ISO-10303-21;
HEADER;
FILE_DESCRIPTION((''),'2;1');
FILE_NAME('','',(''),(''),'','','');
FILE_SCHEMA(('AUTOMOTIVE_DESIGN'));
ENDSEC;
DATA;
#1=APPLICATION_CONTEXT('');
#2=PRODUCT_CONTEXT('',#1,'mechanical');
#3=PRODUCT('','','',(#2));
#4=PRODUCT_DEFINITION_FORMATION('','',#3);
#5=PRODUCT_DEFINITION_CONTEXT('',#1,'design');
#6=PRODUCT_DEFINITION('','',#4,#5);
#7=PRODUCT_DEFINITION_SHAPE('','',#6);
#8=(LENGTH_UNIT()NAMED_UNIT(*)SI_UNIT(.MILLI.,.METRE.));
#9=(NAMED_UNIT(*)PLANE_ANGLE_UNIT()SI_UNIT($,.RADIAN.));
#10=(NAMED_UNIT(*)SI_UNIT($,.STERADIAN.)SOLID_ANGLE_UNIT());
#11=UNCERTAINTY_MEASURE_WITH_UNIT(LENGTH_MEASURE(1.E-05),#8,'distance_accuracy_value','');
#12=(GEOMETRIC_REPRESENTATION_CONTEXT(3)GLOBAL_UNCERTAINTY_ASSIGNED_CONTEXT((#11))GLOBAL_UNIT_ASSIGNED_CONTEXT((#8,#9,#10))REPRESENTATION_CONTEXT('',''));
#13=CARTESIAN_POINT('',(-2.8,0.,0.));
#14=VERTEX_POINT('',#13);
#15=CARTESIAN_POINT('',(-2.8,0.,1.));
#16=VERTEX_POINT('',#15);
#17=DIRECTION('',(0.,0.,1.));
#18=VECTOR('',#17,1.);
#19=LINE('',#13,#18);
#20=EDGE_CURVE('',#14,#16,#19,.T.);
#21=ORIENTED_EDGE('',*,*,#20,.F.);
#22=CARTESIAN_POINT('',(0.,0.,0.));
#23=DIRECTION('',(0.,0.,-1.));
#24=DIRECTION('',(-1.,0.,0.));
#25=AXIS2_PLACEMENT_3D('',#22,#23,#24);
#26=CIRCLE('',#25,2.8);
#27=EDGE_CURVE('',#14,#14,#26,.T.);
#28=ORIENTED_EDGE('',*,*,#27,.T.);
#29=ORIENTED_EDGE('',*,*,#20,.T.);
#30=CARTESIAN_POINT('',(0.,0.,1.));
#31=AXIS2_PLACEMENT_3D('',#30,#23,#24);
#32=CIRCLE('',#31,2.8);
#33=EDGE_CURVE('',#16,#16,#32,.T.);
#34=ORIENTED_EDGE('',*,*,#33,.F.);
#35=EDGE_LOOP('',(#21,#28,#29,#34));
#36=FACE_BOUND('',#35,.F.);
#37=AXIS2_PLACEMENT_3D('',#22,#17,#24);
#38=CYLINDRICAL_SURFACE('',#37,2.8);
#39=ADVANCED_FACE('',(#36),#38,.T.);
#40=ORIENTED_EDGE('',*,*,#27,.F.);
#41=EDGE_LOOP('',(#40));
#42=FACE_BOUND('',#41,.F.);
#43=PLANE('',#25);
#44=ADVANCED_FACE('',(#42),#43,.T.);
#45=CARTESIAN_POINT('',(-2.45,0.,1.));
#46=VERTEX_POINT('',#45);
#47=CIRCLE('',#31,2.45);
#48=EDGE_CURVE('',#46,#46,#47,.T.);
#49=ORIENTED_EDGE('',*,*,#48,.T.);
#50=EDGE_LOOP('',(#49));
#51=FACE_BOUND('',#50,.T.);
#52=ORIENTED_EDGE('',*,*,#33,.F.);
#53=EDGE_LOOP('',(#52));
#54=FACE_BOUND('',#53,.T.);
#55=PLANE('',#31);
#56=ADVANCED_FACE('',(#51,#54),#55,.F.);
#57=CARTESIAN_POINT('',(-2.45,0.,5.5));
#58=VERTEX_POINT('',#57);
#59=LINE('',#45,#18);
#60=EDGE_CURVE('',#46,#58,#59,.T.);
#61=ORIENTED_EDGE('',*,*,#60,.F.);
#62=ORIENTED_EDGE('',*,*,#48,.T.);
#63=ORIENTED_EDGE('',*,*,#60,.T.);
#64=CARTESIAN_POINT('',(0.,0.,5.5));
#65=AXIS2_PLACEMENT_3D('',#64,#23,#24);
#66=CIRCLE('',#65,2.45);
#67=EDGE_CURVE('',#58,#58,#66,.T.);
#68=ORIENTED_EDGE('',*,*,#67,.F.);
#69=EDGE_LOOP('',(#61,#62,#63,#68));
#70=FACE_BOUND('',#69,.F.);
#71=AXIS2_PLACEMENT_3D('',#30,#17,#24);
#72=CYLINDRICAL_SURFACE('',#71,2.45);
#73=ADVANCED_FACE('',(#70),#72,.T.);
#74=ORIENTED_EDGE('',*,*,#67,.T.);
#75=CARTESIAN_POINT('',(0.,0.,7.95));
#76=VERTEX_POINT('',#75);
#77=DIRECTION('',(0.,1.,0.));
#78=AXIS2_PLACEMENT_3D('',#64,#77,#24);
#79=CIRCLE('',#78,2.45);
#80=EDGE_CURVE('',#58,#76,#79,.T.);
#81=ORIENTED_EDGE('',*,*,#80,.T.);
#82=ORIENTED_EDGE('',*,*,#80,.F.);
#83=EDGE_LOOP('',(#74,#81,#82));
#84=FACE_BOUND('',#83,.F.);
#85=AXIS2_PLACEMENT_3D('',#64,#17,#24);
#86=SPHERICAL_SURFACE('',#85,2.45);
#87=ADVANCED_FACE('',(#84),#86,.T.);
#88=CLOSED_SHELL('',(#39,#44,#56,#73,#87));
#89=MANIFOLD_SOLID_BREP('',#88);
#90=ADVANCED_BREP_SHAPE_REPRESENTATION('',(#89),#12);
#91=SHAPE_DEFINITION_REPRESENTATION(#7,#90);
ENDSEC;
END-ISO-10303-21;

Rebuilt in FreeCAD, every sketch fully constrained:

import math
import FreeCAD as App
import Part
import Sketcher
Q = App.Units.Quantity

doc = App.newDocument("Part")
body = doc.addObject("PartDesign::Body", "Body")

sketch1 = body.newObject("Sketcher::SketchObject", "Sketch")
sketch1.AttachmentSupport = (doc.getObject("XZ_Plane"), [""])
sketch1.MapMode = "FlatFace"
sketch1.addGeometry([
    Part.LineSegment(App.Vector(0, 0, 0), App.Vector(-2.8, 0, 0)),
    Part.LineSegment(App.Vector(-2.8, 0, 0), App.Vector(-2.8, 1, 0)),
    Part.LineSegment(App.Vector(-2.8, 1, 0), App.Vector(-2.45, 1, 0)),
    Part.LineSegment(App.Vector(-2.45, 1, 0), App.Vector(-2.45, 5.5, 0)),
    Part.ArcOfCircle(Part.Circle(App.Vector(0, 5.5, 0), App.Vector(0, 0, 1), 2.45), math.radians(90), math.radians(180)),
    Part.LineSegment(App.Vector(0, 7.95, 0), App.Vector(0, 0, 0)),
], False)
sketch1.addConstraint([
    Sketcher.Constraint("Coincident", 0, 2, 1, 1),
    Sketcher.Constraint("Coincident", 1, 2, 2, 1),
    Sketcher.Constraint("Coincident", 2, 2, 3, 1),
    Sketcher.Constraint("Tangent", 3, 2, 4, 2),
    Sketcher.Constraint("Coincident", 4, 1, 5, 1),
    Sketcher.Constraint("Coincident", 5, 2, 0, 1),
    Sketcher.Constraint("Horizontal", 0),
    Sketcher.Constraint("Vertical", 1),
    Sketcher.Constraint("Horizontal", 2),
    Sketcher.Constraint("Vertical", 3),
    Sketcher.Constraint("Vertical", 5),
    Sketcher.Constraint("Coincident", 5, 2, -1, 1),
    Sketcher.Constraint("PointOnObject", 4, 3, -2),
    Sketcher.Constraint("DistanceY", 1, 1, 1, 2, Q("1 mm")),
    Sketcher.Constraint("Radius", 4, Q("2.45 mm")),
    Sketcher.Constraint("DistanceX", 0, 2, 0, 1, Q("2.8 mm")),
    Sketcher.Constraint("DistanceY", -1, 1, 4, 3, Q("5.5 mm")),
])
revolution = body.newObject("PartDesign::Revolution", "Revolution")
revolution.Profile = sketch1
revolution.ReferenceAxis = (sketch1, ["V_Axis"])
revolution.Angle = 360

doc.recompute()
